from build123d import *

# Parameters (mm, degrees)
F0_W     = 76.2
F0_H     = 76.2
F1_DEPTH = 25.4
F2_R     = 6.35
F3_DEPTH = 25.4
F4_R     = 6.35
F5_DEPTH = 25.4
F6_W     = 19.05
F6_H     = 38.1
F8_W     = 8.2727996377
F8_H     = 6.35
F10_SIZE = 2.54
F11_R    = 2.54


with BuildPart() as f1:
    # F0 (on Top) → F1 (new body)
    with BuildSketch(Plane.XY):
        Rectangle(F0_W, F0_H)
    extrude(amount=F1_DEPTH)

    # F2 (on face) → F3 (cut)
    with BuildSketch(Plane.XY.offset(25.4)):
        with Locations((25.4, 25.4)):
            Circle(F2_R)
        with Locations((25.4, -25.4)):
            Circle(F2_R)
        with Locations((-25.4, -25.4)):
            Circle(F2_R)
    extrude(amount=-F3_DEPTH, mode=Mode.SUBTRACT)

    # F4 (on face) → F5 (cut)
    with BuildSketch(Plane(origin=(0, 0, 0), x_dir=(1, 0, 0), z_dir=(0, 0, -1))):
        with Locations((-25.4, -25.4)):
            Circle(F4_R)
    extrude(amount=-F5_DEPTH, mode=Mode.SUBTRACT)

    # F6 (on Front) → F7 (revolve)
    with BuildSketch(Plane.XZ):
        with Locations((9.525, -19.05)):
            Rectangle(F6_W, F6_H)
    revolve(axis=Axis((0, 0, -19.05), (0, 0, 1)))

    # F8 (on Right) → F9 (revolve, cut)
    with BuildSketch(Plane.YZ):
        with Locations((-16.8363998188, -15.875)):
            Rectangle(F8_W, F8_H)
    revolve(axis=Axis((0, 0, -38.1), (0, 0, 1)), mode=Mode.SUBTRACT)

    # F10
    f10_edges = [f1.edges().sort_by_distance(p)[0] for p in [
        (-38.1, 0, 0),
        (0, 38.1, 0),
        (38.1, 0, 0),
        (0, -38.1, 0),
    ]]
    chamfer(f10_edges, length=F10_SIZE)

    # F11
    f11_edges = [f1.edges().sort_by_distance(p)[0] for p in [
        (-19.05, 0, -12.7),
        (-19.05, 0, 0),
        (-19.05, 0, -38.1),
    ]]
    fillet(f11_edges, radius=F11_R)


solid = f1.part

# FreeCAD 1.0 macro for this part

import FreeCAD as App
import Part
import Sketcher
Q = App.Units.Quantity


def edges_at(feature, points):
    """Names of the edges that pass closest to the given points."""
    edges = feature.Shape.Edges
    near = lambda p: min(range(len(edges)), key=lambda i: edges[i].distToShape(Part.Vertex(*p))[0])
    return sorted({f"Edge{near(p) + 1}" for p in points})

doc = App.newDocument("Part")
body = doc.addObject("PartDesign::Body", "Body")

sketch1 = doc.addObject("Sketcher::SketchObject", "Sketch")
body.addObject(sketch1)
sketch1.AttachmentSupport = (doc.XY_Plane, [""])
sketch1.MapMode = "FlatFace"
sketch1.addGeometry(Part.LineSegment(App.Vector(-38, 38, 0), App.Vector(-38, -38, 0)), False)
sketch1.addGeometry(Part.LineSegment(App.Vector(-38, -38, 0), App.Vector(38, -38, 0)), False)
sketch1.addGeometry(Part.LineSegment(App.Vector(38, -38, 0), App.Vector(38, 38, 0)), False)
sketch1.addGeometry(Part.LineSegment(App.Vector(38, 38, 0), App.Vector(-38, 38, 0)), False)
sketch1.addConstraint(Sketcher.Constraint("Coincident", 0, 2, 1, 1))
sketch1.addConstraint(Sketcher.Constraint("Coincident", 1, 2, 2, 1))
sketch1.addConstraint(Sketcher.Constraint("Coincident", 2, 2, 3, 1))
sketch1.addConstraint(Sketcher.Constraint("Coincident", 3, 2, 0, 1))
sketch1.addConstraint(Sketcher.Constraint("Vertical", 0))
sketch1.addConstraint(Sketcher.Constraint("Horizontal", 1))
sketch1.addConstraint(Sketcher.Constraint("Vertical", 2))
sketch1.addConstraint(Sketcher.Constraint("Horizontal", 3))
sketch1.addConstraint(Sketcher.Constraint("Symmetric", 0, 2, 2, 2, -1, 1))
sketch1.addConstraint(Sketcher.Constraint("Equal", 3, 0))
sketch1.addConstraint(Sketcher.Constraint("DistanceX", 1, 1, 1, 2, Q("3 in")))
pad1 = doc.addObject("PartDesign::Pad", "Pad")
body.addObject(pad1)
pad1.Profile = sketch1
pad1.Length = Q("1 in")

sketch2 = doc.addObject("Sketcher::SketchObject", "Sketch001")
body.addObject(sketch2)
sketch2.AttachmentSupport = (doc.XY_Plane, [""])
sketch2.MapMode = "FlatFace"
sketch2.AttachmentOffset = App.Placement(App.Vector(0, 0, 1 * 25.4), App.Rotation())
sketch2.addGeometry(Part.Circle(App.Vector(25, 25, 0), App.Vector(0, 0, 1), 6), False)
sketch2.addGeometry(Part.Circle(App.Vector(25, -25, 0), App.Vector(0, 0, 1), 6), False)
sketch2.addGeometry(Part.Circle(App.Vector(-25, -25, 0), App.Vector(0, 0, 1), 6), False)
sketch2.addConstraint(Sketcher.Constraint("Equal", 0, 1))
sketch2.addConstraint(Sketcher.Constraint("Equal", 1, 2))
sketch2.addConstraint(Sketcher.Constraint("Symmetric", 0, 3, 2, 3, -1, 1))
sketch2.addConstraint(Sketcher.Constraint("Symmetric", 1, 3, 2, 3, -2))
sketch2.addConstraint(Sketcher.Constraint("Diameter", 0, Q("0.5 in")))
sketch2.addConstraint(Sketcher.Constraint("DistanceX", -1, 1, 0, 3, Q("1 in")))
sketch2.addConstraint(Sketcher.Constraint("DistanceY", -1, 1, 0, 3, Q("1 in")))
pocket1 = doc.addObject("PartDesign::Pocket", "Pocket")
body.addObject(pocket1)
pocket1.Profile = sketch2
pocket1.Length = Q("1 in")

sketch3 = doc.addObject("Sketcher::SketchObject", "Sketch002")
body.addObject(sketch3)
sketch3.AttachmentSupport = (doc.XY_Plane, [""])
sketch3.MapMode = "FlatFace"
sketch3.addGeometry(Part.Circle(App.Vector(-25, 25, 0), App.Vector(0, 0, 1), 6), False)
sketch3.addConstraint(Sketcher.Constraint("Diameter", 0, Q("0.5 in")))
sketch3.addConstraint(Sketcher.Constraint("DistanceX", 0, 3, -1, 1, Q("1 in")))
sketch3.addConstraint(Sketcher.Constraint("DistanceY", -1, 1, 0, 3, Q("1 in")))
pocket2 = doc.addObject("PartDesign::Pocket", "Pocket001")
body.addObject(pocket2)
pocket2.Profile = sketch3
pocket2.Length = Q("1 in")
pocket2.Reversed = True

sketch4 = doc.addObject("Sketcher::SketchObject", "Sketch003")
body.addObject(sketch4)
sketch4.AttachmentSupport = (doc.XZ_Plane, [""])
sketch4.MapMode = "FlatFace"
sketch4.addGeometry(Part.LineSegment(App.Vector(0, 0, 0), App.Vector(0, -38, 0)), False)
sketch4.addGeometry(Part.LineSegment(App.Vector(0, -38, 0), App.Vector(19, -38, 0)), False)
sketch4.addGeometry(Part.LineSegment(App.Vector(19, -38, 0), App.Vector(19, 0, 0)), False)
sketch4.addGeometry(Part.LineSegment(App.Vector(19, 0, 0), App.Vector(0, 0, 0)), False)
sketch4.addConstraint(Sketcher.Constraint("Coincident", 0, 2, 1, 1))
sketch4.addConstraint(Sketcher.Constraint("Coincident", 1, 2, 2, 1))
sketch4.addConstraint(Sketcher.Constraint("Coincident", 2, 2, 3, 1))
sketch4.addConstraint(Sketcher.Constraint("Coincident", 3, 2, 0, 1))
sketch4.addConstraint(Sketcher.Constraint("Vertical", 0))
sketch4.addConstraint(Sketcher.Constraint("Horizontal", 1))
sketch4.addConstraint(Sketcher.Constraint("Vertical", 2))
sketch4.addConstraint(Sketcher.Constraint("Horizontal", 3))
sketch4.addConstraint(Sketcher.Constraint("Coincident", 3, 2, -1, 1))
sketch4.addConstraint(Sketcher.Constraint("DistanceY", 0, 2, 0, 1, Q("1.5 in")))
sketch4.addConstraint(Sketcher.Constraint("DistanceX", 1, 1, 1, 2, Q("0.75 in")))
revolution = doc.addObject("PartDesign::Revolution", "Revolution")
body.addObject(revolution)
revolution.Profile = sketch4
revolution.ReferenceAxis = (sketch4, ["V_Axis"])
revolution.Angle = 360

sketch5 = doc.addObject("Sketcher::SketchObject", "Sketch004")
body.addObject(sketch5)
sketch5.AttachmentSupport = (doc.YZ_Plane, [""])
sketch5.MapMode = "FlatFace"
sketch5.addGeometry(Part.LineSegment(App.Vector(-21, -13, 0), App.Vector(-21, -19, 0)), False)
sketch5.addGeometry(Part.LineSegment(App.Vector(-21, -19, 0), App.Vector(-13, -19, 0)), False)
sketch5.addGeometry(Part.LineSegment(App.Vector(-13, -19, 0), App.Vector(-13, -13, 0)), False)
sketch5.addGeometry(Part.LineSegment(App.Vector(-13, -13, 0), App.Vector(-21, -13, 0)), False)
sketch5.addConstraint(Sketcher.Constraint("Coincident", 0, 2, 1, 1))
sketch5.addConstraint(Sketcher.Constraint("Coincident", 1, 2, 2, 1))
sketch5.addConstraint(Sketcher.Constraint("Coincident", 2, 2, 3, 1))
sketch5.addConstraint(Sketcher.Constraint("Coincident", 3, 2, 0, 1))
sketch5.addConstraint(Sketcher.Constraint("Vertical", 0))
sketch5.addConstraint(Sketcher.Constraint("Horizontal", 1))
sketch5.addConstraint(Sketcher.Constraint("Vertical", 2))
sketch5.addConstraint(Sketcher.Constraint("Horizontal", 3))
sketch5.addConstraint(Sketcher.Constraint("DistanceY", 0, 2, 0, 1, Q("0.25 in")))
sketch5.addConstraint(Sketcher.Constraint("DistanceX", 1, 2, -1, 1, Q("0.5 in")))
sketch5.addConstraint(Sketcher.Constraint("DistanceY", 2, 2, -1, 1, Q("0.5 in")))
sketch5.addConstraint(Sketcher.Constraint("DistanceX", 1, 1, 1, 2, Q("8.2728 mm")))
groove = doc.addObject("PartDesign::Groove", "Groove")
body.addObject(groove)
groove.Profile = sketch5
groove.ReferenceAxis = (sketch5, ["V_Axis"])
groove.Angle = 360
doc.recompute()

chamfer = doc.addObject("PartDesign::Chamfer", "Chamfer")
body.addObject(chamfer)
chamfer.Base = (groove, edges_at(groove, [
    (-38.1, 0, 0),
    (0, 38.1, 0),
    (38.1, 0, 0),
    (0, -38.1, 0),
]))
chamfer.Size = Q("0.1 in")
doc.recompute()

fillet = doc.addObject("PartDesign::Fillet", "Fillet")
body.addObject(fillet)
fillet.Base = (chamfer, edges_at(chamfer, [(-19.05, 0, -12.7), (-19.05, 0, 0), (-19.05, 0, -38.1)]))
fillet.Radius = Q("0.1 in")

doc.recompute()
